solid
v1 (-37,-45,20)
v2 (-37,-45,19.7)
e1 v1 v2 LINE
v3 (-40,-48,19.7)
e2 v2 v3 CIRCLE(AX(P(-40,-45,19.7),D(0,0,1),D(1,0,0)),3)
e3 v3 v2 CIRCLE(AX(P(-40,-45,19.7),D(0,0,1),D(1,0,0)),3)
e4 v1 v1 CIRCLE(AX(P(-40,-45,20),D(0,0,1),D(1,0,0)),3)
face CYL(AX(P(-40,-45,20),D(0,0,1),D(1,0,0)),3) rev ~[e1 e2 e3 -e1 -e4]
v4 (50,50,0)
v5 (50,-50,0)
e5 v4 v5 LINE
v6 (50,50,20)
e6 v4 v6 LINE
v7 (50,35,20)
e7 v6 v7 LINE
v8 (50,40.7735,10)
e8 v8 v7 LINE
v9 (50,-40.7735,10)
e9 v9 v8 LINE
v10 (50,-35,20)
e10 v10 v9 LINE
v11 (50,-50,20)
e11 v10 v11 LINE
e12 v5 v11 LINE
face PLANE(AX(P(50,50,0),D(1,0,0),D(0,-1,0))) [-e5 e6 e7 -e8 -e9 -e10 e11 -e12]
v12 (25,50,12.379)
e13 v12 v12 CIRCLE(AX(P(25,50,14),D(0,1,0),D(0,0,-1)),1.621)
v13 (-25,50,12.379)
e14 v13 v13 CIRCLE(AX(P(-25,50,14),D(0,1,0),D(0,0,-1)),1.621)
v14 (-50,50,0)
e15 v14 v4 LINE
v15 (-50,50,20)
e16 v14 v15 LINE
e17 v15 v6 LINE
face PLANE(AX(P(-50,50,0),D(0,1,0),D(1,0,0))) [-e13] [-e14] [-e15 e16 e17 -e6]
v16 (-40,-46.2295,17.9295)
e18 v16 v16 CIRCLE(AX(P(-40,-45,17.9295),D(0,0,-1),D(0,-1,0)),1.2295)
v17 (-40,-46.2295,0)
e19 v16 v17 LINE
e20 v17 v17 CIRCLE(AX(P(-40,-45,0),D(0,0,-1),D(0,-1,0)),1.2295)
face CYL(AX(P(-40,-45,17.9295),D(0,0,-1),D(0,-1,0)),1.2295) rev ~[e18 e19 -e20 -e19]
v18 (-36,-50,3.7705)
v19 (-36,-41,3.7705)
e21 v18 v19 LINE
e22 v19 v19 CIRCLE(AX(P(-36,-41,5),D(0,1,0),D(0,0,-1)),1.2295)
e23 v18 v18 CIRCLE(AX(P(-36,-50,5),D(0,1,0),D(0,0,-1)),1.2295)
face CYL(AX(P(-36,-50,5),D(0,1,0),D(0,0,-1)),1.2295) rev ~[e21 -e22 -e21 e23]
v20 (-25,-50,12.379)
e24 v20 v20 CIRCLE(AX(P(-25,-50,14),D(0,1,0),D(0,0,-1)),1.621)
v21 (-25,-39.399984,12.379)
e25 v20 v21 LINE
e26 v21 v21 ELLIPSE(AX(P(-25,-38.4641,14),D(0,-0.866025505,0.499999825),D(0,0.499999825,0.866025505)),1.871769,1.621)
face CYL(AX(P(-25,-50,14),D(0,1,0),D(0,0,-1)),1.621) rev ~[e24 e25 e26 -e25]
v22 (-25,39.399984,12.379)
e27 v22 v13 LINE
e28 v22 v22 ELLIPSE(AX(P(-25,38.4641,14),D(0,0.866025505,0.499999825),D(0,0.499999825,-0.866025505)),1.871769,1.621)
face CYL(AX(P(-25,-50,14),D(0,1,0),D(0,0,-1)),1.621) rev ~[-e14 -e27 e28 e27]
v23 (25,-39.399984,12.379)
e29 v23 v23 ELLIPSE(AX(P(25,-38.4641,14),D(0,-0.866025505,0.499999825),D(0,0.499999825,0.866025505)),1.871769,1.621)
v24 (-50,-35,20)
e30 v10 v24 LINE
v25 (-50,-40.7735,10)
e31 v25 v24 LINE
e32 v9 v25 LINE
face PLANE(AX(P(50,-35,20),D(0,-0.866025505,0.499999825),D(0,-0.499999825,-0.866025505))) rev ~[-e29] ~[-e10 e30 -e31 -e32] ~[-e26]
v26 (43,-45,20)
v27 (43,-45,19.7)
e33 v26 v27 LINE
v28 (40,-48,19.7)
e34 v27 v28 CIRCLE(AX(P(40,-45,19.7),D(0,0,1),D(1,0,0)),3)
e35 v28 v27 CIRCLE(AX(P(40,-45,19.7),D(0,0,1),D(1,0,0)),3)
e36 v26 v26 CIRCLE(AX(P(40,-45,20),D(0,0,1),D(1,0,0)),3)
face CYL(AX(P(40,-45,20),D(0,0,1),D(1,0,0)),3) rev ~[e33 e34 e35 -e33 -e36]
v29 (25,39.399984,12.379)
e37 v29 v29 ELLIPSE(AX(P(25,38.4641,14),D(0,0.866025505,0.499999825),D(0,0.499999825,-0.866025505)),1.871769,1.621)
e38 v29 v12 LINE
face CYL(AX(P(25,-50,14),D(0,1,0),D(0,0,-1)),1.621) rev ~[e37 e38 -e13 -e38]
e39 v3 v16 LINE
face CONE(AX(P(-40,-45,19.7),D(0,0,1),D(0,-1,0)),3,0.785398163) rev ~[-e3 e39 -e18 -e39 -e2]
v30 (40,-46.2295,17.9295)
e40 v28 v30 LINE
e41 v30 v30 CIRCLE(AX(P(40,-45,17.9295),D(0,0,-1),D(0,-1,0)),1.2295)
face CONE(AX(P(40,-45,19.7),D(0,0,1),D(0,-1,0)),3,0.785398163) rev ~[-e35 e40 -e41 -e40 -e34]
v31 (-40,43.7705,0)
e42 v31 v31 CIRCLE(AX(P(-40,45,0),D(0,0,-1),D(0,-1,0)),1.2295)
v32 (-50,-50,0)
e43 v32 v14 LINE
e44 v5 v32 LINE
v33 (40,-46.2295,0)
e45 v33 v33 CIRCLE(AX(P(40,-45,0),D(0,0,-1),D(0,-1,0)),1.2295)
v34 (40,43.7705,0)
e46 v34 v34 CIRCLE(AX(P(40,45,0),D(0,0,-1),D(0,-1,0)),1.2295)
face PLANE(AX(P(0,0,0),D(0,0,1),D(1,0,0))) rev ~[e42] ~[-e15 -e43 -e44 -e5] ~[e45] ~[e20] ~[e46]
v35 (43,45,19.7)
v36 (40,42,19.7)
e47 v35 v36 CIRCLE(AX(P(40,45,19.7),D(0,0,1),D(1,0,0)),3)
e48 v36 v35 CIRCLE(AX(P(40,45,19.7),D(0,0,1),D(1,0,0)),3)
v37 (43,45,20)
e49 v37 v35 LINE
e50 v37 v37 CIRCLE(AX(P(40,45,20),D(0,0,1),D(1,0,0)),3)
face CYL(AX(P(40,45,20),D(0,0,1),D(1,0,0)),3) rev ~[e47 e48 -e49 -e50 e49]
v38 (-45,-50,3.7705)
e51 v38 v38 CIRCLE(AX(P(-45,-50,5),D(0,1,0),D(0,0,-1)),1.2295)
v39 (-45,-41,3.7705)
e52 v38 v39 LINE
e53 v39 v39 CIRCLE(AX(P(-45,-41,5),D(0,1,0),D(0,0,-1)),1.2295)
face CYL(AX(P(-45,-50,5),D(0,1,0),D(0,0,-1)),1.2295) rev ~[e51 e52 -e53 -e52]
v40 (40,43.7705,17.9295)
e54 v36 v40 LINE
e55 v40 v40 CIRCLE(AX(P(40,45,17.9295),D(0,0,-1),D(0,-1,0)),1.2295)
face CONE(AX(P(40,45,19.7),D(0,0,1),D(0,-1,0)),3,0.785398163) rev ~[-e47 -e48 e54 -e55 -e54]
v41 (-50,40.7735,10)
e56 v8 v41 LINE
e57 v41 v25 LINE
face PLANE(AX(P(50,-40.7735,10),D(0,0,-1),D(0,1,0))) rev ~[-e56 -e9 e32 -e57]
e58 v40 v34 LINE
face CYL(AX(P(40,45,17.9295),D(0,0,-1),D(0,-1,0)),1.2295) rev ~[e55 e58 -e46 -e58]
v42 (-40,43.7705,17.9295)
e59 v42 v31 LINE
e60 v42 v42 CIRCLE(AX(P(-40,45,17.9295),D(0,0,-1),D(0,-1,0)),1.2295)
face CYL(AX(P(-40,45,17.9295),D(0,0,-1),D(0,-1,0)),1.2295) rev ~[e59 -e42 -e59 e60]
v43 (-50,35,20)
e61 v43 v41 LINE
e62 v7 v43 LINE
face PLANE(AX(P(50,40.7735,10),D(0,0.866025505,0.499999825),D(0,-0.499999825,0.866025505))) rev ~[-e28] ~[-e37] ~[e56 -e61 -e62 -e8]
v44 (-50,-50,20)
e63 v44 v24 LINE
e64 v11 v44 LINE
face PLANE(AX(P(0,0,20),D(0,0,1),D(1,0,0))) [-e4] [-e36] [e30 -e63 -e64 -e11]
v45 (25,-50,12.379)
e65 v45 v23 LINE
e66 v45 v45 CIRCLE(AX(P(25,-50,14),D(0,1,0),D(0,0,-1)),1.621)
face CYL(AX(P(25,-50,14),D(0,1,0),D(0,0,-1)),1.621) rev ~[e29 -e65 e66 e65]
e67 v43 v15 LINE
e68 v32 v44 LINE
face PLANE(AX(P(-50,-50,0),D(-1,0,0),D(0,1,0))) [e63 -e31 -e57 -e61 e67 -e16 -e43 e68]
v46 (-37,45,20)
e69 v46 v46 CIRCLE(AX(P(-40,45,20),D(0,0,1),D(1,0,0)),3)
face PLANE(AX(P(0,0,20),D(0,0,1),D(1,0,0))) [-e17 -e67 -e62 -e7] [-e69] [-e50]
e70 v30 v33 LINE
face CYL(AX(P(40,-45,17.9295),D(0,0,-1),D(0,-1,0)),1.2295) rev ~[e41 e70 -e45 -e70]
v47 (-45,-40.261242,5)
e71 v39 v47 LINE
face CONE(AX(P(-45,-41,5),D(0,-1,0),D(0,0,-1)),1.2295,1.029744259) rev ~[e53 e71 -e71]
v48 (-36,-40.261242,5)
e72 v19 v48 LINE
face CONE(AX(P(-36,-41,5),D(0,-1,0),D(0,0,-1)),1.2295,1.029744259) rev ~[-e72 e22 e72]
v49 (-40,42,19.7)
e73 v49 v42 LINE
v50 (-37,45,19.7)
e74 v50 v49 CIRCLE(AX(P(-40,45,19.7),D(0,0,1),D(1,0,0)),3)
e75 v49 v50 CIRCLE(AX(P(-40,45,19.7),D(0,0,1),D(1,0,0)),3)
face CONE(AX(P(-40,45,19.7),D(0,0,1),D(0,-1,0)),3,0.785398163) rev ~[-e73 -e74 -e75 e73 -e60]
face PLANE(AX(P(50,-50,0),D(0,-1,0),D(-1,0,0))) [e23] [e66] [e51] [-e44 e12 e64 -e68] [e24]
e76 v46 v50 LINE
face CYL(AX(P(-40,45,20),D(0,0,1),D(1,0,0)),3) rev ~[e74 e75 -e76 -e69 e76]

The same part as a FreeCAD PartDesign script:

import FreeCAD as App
import Part
import Sketcher

V = App.Vector
Q = App.Units.Quantity


def add_polygon(sketch, points):
    """Adds a closed chain of lines whose ends are joined by coincident constraints."""
    first, n = sketch.GeometryCount, len(points)
    for a, b in zip(points, points[1:] + points[:1]):
        sketch.addGeometry(Part.LineSegment(App.Vector(*a, 0), App.Vector(*b, 0)), False)
    for i in range(n):
        sketch.addConstraint(Sketcher.Constraint("Coincident", first + i, 2, first + (i + 1) % n, 1))

doc = App.newDocument("Part")
body = doc.addObject("PartDesign::Body", "Body")

# Sketch on XY plane
sketch1 = body.newObject("Sketcher::SketchObject", "Sketch")
sketch1.AttachmentSupport = (doc.getObject("XY_Plane"), [""])
sketch1.MapMode = "FlatFace"
add_polygon(sketch1, [(50, 50), (-50, 50), (-50, -50), (50, -50)])  # lines 0-3
sketch1.addConstraint([
    Sketcher.Constraint("Horizontal", 0),
    Sketcher.Constraint("Vertical", 1),
    Sketcher.Constraint("Horizontal", 2),
    Sketcher.Constraint("Vertical", 3),
    Sketcher.Constraint("Symmetric", 0, 2, 2, 2, -1, 1),
    Sketcher.Constraint("Equal", 2, 1),
    Sketcher.Constraint("DistanceX", 0, 2, 0, 1, 100.0),
])
pad1 = body.newObject("PartDesign::Pad", "Pad")
pad1.Profile = sketch1
pad1.Length = 20

# Sketch on YZ plane
sketch2 = body.newObject("Sketcher::SketchObject", "Sketch001")
sketch2.AttachmentSupport = (doc.getObject("YZ_Plane"), [""])
sketch2.MapMode = "FlatFace"
sketch2.AttachmentOffset = App.Placement(V(0, 0, 50), App.Rotation())
add_polygon(sketch2, [(41, 10), (35, 20), (-35, 20), (-41, 10)])  # lines 0-3
sketch2.addConstraint([
    Sketcher.Constraint("Horizontal", 1),
    Sketcher.Constraint("Horizontal", 3),
    Sketcher.Constraint("Equal", 0, 2),
    Sketcher.Constraint("DistanceY", -1, 1, 2, 2, 10.0),
    Sketcher.Constraint("DistanceY", 2, 2, 1, 2, 10.0),
    Sketcher.Constraint("DistanceX", 1, 2, 1, 1, 70.0),
    Sketcher.Constraint("Angle", 0, Q("120 deg")),
    Sketcher.Constraint("DistanceX", -1, 1, 0, 2, 35.0),
])
pocket1 = body.newObject("PartDesign::Pocket", "Pocket")
pocket1.Profile = sketch2
pocket1.Length = 115.5

# Sketch on XY plane
sketch3 = body.newObject("Sketcher::SketchObject", "Sketch002")
sketch3.AttachmentSupport = (doc.getObject("XY_Plane"), [""])
sketch3.MapMode = "FlatFace"
sketch3.AttachmentOffset = App.Placement(V(0, 0, 20), App.Rotation())
sketch3.addGeometry([
    Part.Circle(V(-40, -45, 0), V(0, 0, 1), 3),
    Part.Circle(V(40, -45, 0), V(0, 0, 1), 3),
    Part.Circle(V(-40, 45, 0), V(0, 0, 1), 3),
    Part.Circle(V(40, 45, 0), V(0, 0, 1), 3),
], False)
sketch3.addConstraint([
    Sketcher.Constraint("Equal", 0, 1),
    Sketcher.Constraint("Equal", 1, 2),
    Sketcher.Constraint("Equal", 2, 3),
    Sketcher.Constraint("Symmetric", 1, 3, 2, 3, -1, 1),
    Sketcher.Constraint("Symmetric", 0, 3, 3, 3, -1, 1),
    Sketcher.Constraint("Symmetric", 0, 3, 1, 3, -2),
    Sketcher.Constraint("Diameter", 0, 6.0),
    Sketcher.Constraint("DistanceX", 0, 3, -1, 1, 40.0),
    Sketcher.Constraint("DistanceY", 0, 3, -1, 1, 45.0),
])
pocket2 = body.newObject("PartDesign::Pocket", "Pocket001")
pocket2.Profile = sketch3
pocket2.Length = 0.3

# Sketch on XY plane
sketch4 = body.newObject("Sketcher::SketchObject", "Sketch003")
sketch4.AttachmentSupport = (doc.getObject("XY_Plane"), [""])
sketch4.MapMode = "FlatFace"
sketch4.AttachmentOffset = App.Placement(V(0, 0, 19.7), App.Rotation())
sketch4.addGeometry([
    Part.Circle(V(-40, -45, 0), V(0, 0, 1), 1.2),
    Part.Circle(V(-40, 45, 0), V(0, 0, 1), 1.2),
    Part.Circle(V(40, 45, 0), V(0, 0, 1), 1.2),
    Part.Circle(V(40, -45, 0), V(0, 0, 1), 1.2),
], False)
sketch4.addConstraint([
    Sketcher.Constraint("Equal", 0, 1),
    Sketcher.Constraint("Equal", 1, 2),
    Sketcher.Constraint("Equal", 2, 3),
    Sketcher.Constraint("Symmetric", 0, 3, 2, 3, -1, 1),
    Sketcher.Constraint("Symmetric", 1, 3, 3, 3, -1, 1),
    Sketcher.Constraint("Symmetric", 1, 3, 2, 3, -2),
    Sketcher.Constraint("Diameter", 0, 2.459),
    Sketcher.Constraint("DistanceX", 0, 3, -1, 1, 40.0),
    Sketcher.Constraint("DistanceY", 0, 3, -1, 1, 45.0),
])
doc.recompute()
hole = body.newObject("PartDesign::Hole", "Hole")
hole.Profile = sketch4
hole.ThreadType = "None"
hole.Diameter = 2.459
hole.DepthType = "ThroughAll"
hole.HoleCutType = "Countersink"
hole.HoleCutDiameter = 6
hole.HoleCutCountersinkAngle = 90

# Sketch on XZ plane
sketch5 = body.newObject("Sketcher::SketchObject", "Sketch004")
sketch5.AttachmentSupport = (doc.getObject("XZ_Plane"), [""])
sketch5.MapMode = "FlatFace"
sketch5.AttachmentOffset = App.Placement(V(0, 0, 50), App.Rotation())
sketch5.addGeometry([
    Part.Circle(V(25, 14, 0), V(0, 0, 1), 1.6),
    Part.Circle(V(-25, 14, 0), V(0, 0, 1), 1.6),
], False)
sketch5.addConstraint([
    Sketcher.Constraint("Equal", 0, 1),
    Sketcher.Constraint("Symmetric", 0, 3, 1, 3, -2),
    Sketcher.Constraint("Diameter", 0, 3.242),
    Sketcher.Constraint("DistanceX", -1, 1, 0, 3, 25.0),
    Sketcher.Constraint("DistanceY", -1, 1, 0, 3, 14.0),
])
doc.recompute()
hole2 = body.newObject("PartDesign::Hole", "Hole001")
hole2.Profile = sketch5
hole2.ThreadType = "None"
hole2.Diameter = 3.242
hole2.DepthType = "ThroughAll"

# Sketch on XZ plane
sketch6 = body.newObject("Sketcher::SketchObject", "Sketch005")
sketch6.AttachmentSupport = (doc.getObject("XZ_Plane"), [""])
sketch6.MapMode = "FlatFace"
sketch6.AttachmentOffset = App.Placement(V(0, 0, 50), App.Rotation())
sketch6.addGeometry([
    Part.Circle(V(-45, 5, 0), V(0, 0, 1), 1.2),
    Part.Circle(V(-36, 5, 0), V(0, 0, 1), 1.2),
], False)
sketch6.addConstraint([
    Sketcher.Constraint("Equal", 0, 1),
    Sketcher.Constraint("Horizontal", 0, 3, 1, 3),
    Sketcher.Constraint("Diameter", 0, 2.459),
    Sketcher.Constraint("DistanceX", 0, 3, -1, 1, 45.0),
    Sketcher.Constraint("DistanceY", -1, 1, 0, 3, 5.0),
    Sketcher.Constraint("DistanceX", 1, 3, -1, 1, 36.0),
])
doc.recompute()
hole3 = body.newObject("PartDesign::Hole", "Hole002")
hole3.Profile = sketch6
hole3.ThreadType = "None"
hole3.Diameter = 2.459
hole3.DepthType = "Dimension"
hole3.Depth = 9
hole3.DrillPoint = "Angled"
hole3.DrillPointAngle = 118

doc.recompute()
